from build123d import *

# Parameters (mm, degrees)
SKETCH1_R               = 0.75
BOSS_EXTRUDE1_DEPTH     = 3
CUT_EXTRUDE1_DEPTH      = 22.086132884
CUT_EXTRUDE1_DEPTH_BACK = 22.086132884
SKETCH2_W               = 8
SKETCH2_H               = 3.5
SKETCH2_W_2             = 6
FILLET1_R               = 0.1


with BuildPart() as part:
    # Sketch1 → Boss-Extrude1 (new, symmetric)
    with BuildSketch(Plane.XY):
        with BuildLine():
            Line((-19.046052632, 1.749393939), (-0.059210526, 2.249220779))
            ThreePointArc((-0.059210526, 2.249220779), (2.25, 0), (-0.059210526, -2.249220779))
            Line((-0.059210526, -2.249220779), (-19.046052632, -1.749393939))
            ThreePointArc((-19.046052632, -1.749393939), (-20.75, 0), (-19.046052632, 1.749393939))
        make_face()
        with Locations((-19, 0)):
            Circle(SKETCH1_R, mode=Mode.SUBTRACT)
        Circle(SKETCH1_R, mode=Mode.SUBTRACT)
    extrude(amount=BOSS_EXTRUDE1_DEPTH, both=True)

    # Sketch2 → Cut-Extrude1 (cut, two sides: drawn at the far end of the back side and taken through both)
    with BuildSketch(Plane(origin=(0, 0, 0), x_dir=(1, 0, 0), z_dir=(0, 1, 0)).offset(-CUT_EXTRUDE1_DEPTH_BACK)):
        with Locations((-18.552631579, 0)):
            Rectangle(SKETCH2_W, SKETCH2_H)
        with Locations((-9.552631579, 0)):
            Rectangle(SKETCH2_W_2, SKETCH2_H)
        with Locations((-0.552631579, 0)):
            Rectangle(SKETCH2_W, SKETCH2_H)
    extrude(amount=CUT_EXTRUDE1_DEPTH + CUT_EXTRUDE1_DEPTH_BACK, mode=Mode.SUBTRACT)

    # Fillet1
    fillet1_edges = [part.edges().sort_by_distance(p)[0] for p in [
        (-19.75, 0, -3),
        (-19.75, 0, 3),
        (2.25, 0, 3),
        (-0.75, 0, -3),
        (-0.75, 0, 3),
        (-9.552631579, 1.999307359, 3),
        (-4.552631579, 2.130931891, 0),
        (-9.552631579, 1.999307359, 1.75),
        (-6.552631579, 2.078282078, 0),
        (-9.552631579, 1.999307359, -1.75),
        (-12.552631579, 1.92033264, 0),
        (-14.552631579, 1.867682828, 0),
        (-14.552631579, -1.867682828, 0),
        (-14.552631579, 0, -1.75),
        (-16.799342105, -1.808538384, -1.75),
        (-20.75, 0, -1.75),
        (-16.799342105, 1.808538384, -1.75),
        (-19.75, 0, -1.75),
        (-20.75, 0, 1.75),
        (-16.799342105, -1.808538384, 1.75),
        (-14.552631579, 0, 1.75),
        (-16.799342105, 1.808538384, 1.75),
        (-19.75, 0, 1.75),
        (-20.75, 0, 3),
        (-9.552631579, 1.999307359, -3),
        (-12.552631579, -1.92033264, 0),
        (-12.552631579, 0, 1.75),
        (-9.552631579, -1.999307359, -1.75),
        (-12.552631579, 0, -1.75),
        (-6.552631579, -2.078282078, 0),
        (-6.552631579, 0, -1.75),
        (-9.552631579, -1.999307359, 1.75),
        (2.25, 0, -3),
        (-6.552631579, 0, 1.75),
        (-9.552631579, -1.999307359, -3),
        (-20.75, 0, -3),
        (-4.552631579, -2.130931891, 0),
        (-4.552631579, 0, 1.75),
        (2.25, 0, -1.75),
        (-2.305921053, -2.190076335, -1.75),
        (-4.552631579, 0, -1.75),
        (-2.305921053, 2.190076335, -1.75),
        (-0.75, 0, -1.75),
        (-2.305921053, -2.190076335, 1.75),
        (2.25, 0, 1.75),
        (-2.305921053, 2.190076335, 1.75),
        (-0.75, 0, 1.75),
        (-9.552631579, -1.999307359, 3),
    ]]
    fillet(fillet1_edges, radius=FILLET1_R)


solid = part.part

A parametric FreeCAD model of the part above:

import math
import FreeCAD as App
import Part
import Sketcher
Q = App.Units.Quantity


def add_polygon(sketch, points):
    """Adds a closed chain of lines whose ends are joined by coincident constraints."""
    first, n = sketch.GeometryCount, len(points)
    for a, b in zip(points, points[1:] + points[:1]):
        sketch.addGeometry(Part.LineSegment(App.Vector(*a, 0), App.Vector(*b, 0)), False)
    for i in range(n):
        sketch.addConstraint(Sketcher.Constraint("Coincident", first + i, 2, first + (i + 1) % n, 1))

doc = App.newDocument("Part")
body = doc.addObject("PartDesign::Body", "Body")

# Sketch on XY plane
sketch1 = body.newObject("Sketcher::SketchObject", "Sketch")
sketch1.AttachmentSupport = (doc.getObject("XY_Plane"), [""])
sketch1.MapMode = "FlatFace"
sketch1.addGeometry(Part.LineSegment(App.Vector(-0.1, 2.2, 0), App.Vector(-19, 1.7, 0)), False)
sketch1.addGeometry(Part.ArcOfCircle(Part.Circle(App.Vector(-19, 0, 0), App.Vector(0, 0, 1), 1.8), math.radians(92), math.radians(268)), False)
sketch1.addGeometry(Part.LineSegment(App.Vector(-19, -1.7, 0), App.Vector(-0.1, -2.2, 0)), False)
sketch1.addGeometry(Part.ArcOfCircle(Part.Circle(App.Vector(0, 0, 0), App.Vector(0, 0, 1), 2.2), math.radians(-92), math.radians(92)), False)
sketch1.addGeometry(Part.Circle(App.Vector(0, 0, 0), App.Vector(0, 0, 1), 0.8), False)
sketch1.addGeometry(Part.Circle(App.Vector(-19, 0, 0), App.Vector(0, 0, 1), 0.8), False)
sketch1.addConstraint(Sketcher.Constraint("Tangent", 0, 2, 1, 1))
sketch1.addConstraint(Sketcher.Constraint("Tangent", 1, 2, 2, 1))
sketch1.addConstraint(Sketcher.Constraint("Tangent", 2, 2, 3, 1))
sketch1.addConstraint(Sketcher.Constraint("Tangent", 3, 2, 0, 1))
sketch1.addConstraint(Sketcher.Constraint("Coincident", 3, 3, -1, 1))
sketch1.addConstraint(Sketcher.Constraint("Coincident", 4, 3, -1, 1))
sketch1.addConstraint(Sketcher.Constraint("Coincident", 5, 3, 1, 3))
sketch1.addConstraint(Sketcher.Constraint("Equal", 4, 5))
sketch1.addConstraint(Sketcher.Constraint("PointOnObject", 1, 3, -1))
sketch1.addConstraint(Sketcher.Constraint("Diameter", 4, Q("1.5 mm")))
sketch1.addConstraint(Sketcher.Constraint("Radius", 1, Q("1.75 mm")))
sketch1.addConstraint(Sketcher.Constraint("Radius", 3, Q("2.25 mm")))
sketch1.addConstraint(Sketcher.Constraint("DistanceX", 1, 3, -1, 1, Q("19 mm")))
pad1 = body.newObject("PartDesign::Pad", "Pad")
pad1.Profile = sketch1
pad1.Length = 6
pad1.Midplane = True

# Sketch on XZ plane
sketch2 = body.newObject("Sketcher::SketchObject", "Sketch001")
sketch2.AttachmentSupport = (doc.getObject("XZ_Plane"), [""])
sketch2.MapMode = "FlatFace"
add_polygon(sketch2, [(-22.6, -1.8), (-22.6, 1.8), (-14.6, 1.8), (-14.6, -1.8)])  # lines 0-3
add_polygon(sketch2, [(-12.6, -1.8), (-12.6, 1.8), (-6.6, 1.8), (-6.6, -1.8)])  # lines 4-7
add_polygon(sketch2, [(-4.6, -1.8), (-4.6, 1.8), (3.4, 1.8), (3.4, -1.8)])  # lines 8-11
sketch2.addConstraint(Sketcher.Constraint("Vertical", 0))
sketch2.addConstraint(Sketcher.Constraint("Horizontal", 1))
sketch2.addConstraint(Sketcher.Constraint("Vertical", 2))
sketch2.addConstraint(Sketcher.Constraint("Horizontal", 3))
sketch2.addConstraint(Sketcher.Constraint("Vertical", 4))
sketch2.addConstraint(Sketcher.Constraint("Horizontal", 5))
sketch2.addConstraint(Sketcher.Constraint("Vertical", 6))
sketch2.addConstraint(Sketcher.Constraint("Horizontal", 7))
sketch2.addConstraint(Sketcher.Constraint("Vertical", 8))
sketch2.addConstraint(Sketcher.Constraint("Horizontal", 9))
sketch2.addConstraint(Sketcher.Constraint("Vertical", 10))
sketch2.addConstraint(Sketcher.Constraint("Horizontal", 11))
sketch2.addConstraint(Sketcher.Constraint("Horizontal", 1, 2, 4, 2))
sketch2.addConstraint(Sketcher.Constraint("Horizontal", 3, 2, 6, 2))
sketch2.addConstraint(Sketcher.Constraint("Horizontal", 5, 2, 8, 2))
sketch2.addConstraint(Sketcher.Constraint("Horizontal", 7, 2, 10, 2))
sketch2.addConstraint(Sketcher.Constraint("Equal", 3, 9))
sketch2.addConstraint(Sketcher.Constraint("DistanceX", 1, 1, 1, 2, Q("8 mm")))
sketch2.addConstraint(Sketcher.Constraint("DistanceX", 5, 1, 5, 2, Q("6 mm")))
sketch2.addConstraint(Sketcher.Constraint("DistanceY", 0, 1, 0, 2, Q("3.5 mm")))
sketch2.addConstraint(Sketcher.Constraint("DistanceX", 1, 2, 4, 2, Q("2 mm")))
sketch2.addConstraint(Sketcher.Constraint("DistanceX", 5, 2, 8, 2, Q("2 mm")))
sketch2.addConstraint(Sketcher.Constraint("DistanceY", -1, 1, 0, 2, Q("1.75 mm")))
sketch2.addConstraint(Sketcher.Constraint("DistanceX", 0, 2, -1, 1, Q("22.552632 mm")))
pocket1 = body.newObject("PartDesign::Pocket", "Pocket")
pocket1.Profile = sketch2
pocket1.Type = "ThroughAll"
pocket1.Midplane = True
doc.recompute()

fillet = body.newObject("PartDesign::Fillet", "Fillet")
fillet.Base = (pocket1, ["Edge1"])
fillet.UseAllEdges = True
fillet.Radius = 0.1

doc.recompute()
